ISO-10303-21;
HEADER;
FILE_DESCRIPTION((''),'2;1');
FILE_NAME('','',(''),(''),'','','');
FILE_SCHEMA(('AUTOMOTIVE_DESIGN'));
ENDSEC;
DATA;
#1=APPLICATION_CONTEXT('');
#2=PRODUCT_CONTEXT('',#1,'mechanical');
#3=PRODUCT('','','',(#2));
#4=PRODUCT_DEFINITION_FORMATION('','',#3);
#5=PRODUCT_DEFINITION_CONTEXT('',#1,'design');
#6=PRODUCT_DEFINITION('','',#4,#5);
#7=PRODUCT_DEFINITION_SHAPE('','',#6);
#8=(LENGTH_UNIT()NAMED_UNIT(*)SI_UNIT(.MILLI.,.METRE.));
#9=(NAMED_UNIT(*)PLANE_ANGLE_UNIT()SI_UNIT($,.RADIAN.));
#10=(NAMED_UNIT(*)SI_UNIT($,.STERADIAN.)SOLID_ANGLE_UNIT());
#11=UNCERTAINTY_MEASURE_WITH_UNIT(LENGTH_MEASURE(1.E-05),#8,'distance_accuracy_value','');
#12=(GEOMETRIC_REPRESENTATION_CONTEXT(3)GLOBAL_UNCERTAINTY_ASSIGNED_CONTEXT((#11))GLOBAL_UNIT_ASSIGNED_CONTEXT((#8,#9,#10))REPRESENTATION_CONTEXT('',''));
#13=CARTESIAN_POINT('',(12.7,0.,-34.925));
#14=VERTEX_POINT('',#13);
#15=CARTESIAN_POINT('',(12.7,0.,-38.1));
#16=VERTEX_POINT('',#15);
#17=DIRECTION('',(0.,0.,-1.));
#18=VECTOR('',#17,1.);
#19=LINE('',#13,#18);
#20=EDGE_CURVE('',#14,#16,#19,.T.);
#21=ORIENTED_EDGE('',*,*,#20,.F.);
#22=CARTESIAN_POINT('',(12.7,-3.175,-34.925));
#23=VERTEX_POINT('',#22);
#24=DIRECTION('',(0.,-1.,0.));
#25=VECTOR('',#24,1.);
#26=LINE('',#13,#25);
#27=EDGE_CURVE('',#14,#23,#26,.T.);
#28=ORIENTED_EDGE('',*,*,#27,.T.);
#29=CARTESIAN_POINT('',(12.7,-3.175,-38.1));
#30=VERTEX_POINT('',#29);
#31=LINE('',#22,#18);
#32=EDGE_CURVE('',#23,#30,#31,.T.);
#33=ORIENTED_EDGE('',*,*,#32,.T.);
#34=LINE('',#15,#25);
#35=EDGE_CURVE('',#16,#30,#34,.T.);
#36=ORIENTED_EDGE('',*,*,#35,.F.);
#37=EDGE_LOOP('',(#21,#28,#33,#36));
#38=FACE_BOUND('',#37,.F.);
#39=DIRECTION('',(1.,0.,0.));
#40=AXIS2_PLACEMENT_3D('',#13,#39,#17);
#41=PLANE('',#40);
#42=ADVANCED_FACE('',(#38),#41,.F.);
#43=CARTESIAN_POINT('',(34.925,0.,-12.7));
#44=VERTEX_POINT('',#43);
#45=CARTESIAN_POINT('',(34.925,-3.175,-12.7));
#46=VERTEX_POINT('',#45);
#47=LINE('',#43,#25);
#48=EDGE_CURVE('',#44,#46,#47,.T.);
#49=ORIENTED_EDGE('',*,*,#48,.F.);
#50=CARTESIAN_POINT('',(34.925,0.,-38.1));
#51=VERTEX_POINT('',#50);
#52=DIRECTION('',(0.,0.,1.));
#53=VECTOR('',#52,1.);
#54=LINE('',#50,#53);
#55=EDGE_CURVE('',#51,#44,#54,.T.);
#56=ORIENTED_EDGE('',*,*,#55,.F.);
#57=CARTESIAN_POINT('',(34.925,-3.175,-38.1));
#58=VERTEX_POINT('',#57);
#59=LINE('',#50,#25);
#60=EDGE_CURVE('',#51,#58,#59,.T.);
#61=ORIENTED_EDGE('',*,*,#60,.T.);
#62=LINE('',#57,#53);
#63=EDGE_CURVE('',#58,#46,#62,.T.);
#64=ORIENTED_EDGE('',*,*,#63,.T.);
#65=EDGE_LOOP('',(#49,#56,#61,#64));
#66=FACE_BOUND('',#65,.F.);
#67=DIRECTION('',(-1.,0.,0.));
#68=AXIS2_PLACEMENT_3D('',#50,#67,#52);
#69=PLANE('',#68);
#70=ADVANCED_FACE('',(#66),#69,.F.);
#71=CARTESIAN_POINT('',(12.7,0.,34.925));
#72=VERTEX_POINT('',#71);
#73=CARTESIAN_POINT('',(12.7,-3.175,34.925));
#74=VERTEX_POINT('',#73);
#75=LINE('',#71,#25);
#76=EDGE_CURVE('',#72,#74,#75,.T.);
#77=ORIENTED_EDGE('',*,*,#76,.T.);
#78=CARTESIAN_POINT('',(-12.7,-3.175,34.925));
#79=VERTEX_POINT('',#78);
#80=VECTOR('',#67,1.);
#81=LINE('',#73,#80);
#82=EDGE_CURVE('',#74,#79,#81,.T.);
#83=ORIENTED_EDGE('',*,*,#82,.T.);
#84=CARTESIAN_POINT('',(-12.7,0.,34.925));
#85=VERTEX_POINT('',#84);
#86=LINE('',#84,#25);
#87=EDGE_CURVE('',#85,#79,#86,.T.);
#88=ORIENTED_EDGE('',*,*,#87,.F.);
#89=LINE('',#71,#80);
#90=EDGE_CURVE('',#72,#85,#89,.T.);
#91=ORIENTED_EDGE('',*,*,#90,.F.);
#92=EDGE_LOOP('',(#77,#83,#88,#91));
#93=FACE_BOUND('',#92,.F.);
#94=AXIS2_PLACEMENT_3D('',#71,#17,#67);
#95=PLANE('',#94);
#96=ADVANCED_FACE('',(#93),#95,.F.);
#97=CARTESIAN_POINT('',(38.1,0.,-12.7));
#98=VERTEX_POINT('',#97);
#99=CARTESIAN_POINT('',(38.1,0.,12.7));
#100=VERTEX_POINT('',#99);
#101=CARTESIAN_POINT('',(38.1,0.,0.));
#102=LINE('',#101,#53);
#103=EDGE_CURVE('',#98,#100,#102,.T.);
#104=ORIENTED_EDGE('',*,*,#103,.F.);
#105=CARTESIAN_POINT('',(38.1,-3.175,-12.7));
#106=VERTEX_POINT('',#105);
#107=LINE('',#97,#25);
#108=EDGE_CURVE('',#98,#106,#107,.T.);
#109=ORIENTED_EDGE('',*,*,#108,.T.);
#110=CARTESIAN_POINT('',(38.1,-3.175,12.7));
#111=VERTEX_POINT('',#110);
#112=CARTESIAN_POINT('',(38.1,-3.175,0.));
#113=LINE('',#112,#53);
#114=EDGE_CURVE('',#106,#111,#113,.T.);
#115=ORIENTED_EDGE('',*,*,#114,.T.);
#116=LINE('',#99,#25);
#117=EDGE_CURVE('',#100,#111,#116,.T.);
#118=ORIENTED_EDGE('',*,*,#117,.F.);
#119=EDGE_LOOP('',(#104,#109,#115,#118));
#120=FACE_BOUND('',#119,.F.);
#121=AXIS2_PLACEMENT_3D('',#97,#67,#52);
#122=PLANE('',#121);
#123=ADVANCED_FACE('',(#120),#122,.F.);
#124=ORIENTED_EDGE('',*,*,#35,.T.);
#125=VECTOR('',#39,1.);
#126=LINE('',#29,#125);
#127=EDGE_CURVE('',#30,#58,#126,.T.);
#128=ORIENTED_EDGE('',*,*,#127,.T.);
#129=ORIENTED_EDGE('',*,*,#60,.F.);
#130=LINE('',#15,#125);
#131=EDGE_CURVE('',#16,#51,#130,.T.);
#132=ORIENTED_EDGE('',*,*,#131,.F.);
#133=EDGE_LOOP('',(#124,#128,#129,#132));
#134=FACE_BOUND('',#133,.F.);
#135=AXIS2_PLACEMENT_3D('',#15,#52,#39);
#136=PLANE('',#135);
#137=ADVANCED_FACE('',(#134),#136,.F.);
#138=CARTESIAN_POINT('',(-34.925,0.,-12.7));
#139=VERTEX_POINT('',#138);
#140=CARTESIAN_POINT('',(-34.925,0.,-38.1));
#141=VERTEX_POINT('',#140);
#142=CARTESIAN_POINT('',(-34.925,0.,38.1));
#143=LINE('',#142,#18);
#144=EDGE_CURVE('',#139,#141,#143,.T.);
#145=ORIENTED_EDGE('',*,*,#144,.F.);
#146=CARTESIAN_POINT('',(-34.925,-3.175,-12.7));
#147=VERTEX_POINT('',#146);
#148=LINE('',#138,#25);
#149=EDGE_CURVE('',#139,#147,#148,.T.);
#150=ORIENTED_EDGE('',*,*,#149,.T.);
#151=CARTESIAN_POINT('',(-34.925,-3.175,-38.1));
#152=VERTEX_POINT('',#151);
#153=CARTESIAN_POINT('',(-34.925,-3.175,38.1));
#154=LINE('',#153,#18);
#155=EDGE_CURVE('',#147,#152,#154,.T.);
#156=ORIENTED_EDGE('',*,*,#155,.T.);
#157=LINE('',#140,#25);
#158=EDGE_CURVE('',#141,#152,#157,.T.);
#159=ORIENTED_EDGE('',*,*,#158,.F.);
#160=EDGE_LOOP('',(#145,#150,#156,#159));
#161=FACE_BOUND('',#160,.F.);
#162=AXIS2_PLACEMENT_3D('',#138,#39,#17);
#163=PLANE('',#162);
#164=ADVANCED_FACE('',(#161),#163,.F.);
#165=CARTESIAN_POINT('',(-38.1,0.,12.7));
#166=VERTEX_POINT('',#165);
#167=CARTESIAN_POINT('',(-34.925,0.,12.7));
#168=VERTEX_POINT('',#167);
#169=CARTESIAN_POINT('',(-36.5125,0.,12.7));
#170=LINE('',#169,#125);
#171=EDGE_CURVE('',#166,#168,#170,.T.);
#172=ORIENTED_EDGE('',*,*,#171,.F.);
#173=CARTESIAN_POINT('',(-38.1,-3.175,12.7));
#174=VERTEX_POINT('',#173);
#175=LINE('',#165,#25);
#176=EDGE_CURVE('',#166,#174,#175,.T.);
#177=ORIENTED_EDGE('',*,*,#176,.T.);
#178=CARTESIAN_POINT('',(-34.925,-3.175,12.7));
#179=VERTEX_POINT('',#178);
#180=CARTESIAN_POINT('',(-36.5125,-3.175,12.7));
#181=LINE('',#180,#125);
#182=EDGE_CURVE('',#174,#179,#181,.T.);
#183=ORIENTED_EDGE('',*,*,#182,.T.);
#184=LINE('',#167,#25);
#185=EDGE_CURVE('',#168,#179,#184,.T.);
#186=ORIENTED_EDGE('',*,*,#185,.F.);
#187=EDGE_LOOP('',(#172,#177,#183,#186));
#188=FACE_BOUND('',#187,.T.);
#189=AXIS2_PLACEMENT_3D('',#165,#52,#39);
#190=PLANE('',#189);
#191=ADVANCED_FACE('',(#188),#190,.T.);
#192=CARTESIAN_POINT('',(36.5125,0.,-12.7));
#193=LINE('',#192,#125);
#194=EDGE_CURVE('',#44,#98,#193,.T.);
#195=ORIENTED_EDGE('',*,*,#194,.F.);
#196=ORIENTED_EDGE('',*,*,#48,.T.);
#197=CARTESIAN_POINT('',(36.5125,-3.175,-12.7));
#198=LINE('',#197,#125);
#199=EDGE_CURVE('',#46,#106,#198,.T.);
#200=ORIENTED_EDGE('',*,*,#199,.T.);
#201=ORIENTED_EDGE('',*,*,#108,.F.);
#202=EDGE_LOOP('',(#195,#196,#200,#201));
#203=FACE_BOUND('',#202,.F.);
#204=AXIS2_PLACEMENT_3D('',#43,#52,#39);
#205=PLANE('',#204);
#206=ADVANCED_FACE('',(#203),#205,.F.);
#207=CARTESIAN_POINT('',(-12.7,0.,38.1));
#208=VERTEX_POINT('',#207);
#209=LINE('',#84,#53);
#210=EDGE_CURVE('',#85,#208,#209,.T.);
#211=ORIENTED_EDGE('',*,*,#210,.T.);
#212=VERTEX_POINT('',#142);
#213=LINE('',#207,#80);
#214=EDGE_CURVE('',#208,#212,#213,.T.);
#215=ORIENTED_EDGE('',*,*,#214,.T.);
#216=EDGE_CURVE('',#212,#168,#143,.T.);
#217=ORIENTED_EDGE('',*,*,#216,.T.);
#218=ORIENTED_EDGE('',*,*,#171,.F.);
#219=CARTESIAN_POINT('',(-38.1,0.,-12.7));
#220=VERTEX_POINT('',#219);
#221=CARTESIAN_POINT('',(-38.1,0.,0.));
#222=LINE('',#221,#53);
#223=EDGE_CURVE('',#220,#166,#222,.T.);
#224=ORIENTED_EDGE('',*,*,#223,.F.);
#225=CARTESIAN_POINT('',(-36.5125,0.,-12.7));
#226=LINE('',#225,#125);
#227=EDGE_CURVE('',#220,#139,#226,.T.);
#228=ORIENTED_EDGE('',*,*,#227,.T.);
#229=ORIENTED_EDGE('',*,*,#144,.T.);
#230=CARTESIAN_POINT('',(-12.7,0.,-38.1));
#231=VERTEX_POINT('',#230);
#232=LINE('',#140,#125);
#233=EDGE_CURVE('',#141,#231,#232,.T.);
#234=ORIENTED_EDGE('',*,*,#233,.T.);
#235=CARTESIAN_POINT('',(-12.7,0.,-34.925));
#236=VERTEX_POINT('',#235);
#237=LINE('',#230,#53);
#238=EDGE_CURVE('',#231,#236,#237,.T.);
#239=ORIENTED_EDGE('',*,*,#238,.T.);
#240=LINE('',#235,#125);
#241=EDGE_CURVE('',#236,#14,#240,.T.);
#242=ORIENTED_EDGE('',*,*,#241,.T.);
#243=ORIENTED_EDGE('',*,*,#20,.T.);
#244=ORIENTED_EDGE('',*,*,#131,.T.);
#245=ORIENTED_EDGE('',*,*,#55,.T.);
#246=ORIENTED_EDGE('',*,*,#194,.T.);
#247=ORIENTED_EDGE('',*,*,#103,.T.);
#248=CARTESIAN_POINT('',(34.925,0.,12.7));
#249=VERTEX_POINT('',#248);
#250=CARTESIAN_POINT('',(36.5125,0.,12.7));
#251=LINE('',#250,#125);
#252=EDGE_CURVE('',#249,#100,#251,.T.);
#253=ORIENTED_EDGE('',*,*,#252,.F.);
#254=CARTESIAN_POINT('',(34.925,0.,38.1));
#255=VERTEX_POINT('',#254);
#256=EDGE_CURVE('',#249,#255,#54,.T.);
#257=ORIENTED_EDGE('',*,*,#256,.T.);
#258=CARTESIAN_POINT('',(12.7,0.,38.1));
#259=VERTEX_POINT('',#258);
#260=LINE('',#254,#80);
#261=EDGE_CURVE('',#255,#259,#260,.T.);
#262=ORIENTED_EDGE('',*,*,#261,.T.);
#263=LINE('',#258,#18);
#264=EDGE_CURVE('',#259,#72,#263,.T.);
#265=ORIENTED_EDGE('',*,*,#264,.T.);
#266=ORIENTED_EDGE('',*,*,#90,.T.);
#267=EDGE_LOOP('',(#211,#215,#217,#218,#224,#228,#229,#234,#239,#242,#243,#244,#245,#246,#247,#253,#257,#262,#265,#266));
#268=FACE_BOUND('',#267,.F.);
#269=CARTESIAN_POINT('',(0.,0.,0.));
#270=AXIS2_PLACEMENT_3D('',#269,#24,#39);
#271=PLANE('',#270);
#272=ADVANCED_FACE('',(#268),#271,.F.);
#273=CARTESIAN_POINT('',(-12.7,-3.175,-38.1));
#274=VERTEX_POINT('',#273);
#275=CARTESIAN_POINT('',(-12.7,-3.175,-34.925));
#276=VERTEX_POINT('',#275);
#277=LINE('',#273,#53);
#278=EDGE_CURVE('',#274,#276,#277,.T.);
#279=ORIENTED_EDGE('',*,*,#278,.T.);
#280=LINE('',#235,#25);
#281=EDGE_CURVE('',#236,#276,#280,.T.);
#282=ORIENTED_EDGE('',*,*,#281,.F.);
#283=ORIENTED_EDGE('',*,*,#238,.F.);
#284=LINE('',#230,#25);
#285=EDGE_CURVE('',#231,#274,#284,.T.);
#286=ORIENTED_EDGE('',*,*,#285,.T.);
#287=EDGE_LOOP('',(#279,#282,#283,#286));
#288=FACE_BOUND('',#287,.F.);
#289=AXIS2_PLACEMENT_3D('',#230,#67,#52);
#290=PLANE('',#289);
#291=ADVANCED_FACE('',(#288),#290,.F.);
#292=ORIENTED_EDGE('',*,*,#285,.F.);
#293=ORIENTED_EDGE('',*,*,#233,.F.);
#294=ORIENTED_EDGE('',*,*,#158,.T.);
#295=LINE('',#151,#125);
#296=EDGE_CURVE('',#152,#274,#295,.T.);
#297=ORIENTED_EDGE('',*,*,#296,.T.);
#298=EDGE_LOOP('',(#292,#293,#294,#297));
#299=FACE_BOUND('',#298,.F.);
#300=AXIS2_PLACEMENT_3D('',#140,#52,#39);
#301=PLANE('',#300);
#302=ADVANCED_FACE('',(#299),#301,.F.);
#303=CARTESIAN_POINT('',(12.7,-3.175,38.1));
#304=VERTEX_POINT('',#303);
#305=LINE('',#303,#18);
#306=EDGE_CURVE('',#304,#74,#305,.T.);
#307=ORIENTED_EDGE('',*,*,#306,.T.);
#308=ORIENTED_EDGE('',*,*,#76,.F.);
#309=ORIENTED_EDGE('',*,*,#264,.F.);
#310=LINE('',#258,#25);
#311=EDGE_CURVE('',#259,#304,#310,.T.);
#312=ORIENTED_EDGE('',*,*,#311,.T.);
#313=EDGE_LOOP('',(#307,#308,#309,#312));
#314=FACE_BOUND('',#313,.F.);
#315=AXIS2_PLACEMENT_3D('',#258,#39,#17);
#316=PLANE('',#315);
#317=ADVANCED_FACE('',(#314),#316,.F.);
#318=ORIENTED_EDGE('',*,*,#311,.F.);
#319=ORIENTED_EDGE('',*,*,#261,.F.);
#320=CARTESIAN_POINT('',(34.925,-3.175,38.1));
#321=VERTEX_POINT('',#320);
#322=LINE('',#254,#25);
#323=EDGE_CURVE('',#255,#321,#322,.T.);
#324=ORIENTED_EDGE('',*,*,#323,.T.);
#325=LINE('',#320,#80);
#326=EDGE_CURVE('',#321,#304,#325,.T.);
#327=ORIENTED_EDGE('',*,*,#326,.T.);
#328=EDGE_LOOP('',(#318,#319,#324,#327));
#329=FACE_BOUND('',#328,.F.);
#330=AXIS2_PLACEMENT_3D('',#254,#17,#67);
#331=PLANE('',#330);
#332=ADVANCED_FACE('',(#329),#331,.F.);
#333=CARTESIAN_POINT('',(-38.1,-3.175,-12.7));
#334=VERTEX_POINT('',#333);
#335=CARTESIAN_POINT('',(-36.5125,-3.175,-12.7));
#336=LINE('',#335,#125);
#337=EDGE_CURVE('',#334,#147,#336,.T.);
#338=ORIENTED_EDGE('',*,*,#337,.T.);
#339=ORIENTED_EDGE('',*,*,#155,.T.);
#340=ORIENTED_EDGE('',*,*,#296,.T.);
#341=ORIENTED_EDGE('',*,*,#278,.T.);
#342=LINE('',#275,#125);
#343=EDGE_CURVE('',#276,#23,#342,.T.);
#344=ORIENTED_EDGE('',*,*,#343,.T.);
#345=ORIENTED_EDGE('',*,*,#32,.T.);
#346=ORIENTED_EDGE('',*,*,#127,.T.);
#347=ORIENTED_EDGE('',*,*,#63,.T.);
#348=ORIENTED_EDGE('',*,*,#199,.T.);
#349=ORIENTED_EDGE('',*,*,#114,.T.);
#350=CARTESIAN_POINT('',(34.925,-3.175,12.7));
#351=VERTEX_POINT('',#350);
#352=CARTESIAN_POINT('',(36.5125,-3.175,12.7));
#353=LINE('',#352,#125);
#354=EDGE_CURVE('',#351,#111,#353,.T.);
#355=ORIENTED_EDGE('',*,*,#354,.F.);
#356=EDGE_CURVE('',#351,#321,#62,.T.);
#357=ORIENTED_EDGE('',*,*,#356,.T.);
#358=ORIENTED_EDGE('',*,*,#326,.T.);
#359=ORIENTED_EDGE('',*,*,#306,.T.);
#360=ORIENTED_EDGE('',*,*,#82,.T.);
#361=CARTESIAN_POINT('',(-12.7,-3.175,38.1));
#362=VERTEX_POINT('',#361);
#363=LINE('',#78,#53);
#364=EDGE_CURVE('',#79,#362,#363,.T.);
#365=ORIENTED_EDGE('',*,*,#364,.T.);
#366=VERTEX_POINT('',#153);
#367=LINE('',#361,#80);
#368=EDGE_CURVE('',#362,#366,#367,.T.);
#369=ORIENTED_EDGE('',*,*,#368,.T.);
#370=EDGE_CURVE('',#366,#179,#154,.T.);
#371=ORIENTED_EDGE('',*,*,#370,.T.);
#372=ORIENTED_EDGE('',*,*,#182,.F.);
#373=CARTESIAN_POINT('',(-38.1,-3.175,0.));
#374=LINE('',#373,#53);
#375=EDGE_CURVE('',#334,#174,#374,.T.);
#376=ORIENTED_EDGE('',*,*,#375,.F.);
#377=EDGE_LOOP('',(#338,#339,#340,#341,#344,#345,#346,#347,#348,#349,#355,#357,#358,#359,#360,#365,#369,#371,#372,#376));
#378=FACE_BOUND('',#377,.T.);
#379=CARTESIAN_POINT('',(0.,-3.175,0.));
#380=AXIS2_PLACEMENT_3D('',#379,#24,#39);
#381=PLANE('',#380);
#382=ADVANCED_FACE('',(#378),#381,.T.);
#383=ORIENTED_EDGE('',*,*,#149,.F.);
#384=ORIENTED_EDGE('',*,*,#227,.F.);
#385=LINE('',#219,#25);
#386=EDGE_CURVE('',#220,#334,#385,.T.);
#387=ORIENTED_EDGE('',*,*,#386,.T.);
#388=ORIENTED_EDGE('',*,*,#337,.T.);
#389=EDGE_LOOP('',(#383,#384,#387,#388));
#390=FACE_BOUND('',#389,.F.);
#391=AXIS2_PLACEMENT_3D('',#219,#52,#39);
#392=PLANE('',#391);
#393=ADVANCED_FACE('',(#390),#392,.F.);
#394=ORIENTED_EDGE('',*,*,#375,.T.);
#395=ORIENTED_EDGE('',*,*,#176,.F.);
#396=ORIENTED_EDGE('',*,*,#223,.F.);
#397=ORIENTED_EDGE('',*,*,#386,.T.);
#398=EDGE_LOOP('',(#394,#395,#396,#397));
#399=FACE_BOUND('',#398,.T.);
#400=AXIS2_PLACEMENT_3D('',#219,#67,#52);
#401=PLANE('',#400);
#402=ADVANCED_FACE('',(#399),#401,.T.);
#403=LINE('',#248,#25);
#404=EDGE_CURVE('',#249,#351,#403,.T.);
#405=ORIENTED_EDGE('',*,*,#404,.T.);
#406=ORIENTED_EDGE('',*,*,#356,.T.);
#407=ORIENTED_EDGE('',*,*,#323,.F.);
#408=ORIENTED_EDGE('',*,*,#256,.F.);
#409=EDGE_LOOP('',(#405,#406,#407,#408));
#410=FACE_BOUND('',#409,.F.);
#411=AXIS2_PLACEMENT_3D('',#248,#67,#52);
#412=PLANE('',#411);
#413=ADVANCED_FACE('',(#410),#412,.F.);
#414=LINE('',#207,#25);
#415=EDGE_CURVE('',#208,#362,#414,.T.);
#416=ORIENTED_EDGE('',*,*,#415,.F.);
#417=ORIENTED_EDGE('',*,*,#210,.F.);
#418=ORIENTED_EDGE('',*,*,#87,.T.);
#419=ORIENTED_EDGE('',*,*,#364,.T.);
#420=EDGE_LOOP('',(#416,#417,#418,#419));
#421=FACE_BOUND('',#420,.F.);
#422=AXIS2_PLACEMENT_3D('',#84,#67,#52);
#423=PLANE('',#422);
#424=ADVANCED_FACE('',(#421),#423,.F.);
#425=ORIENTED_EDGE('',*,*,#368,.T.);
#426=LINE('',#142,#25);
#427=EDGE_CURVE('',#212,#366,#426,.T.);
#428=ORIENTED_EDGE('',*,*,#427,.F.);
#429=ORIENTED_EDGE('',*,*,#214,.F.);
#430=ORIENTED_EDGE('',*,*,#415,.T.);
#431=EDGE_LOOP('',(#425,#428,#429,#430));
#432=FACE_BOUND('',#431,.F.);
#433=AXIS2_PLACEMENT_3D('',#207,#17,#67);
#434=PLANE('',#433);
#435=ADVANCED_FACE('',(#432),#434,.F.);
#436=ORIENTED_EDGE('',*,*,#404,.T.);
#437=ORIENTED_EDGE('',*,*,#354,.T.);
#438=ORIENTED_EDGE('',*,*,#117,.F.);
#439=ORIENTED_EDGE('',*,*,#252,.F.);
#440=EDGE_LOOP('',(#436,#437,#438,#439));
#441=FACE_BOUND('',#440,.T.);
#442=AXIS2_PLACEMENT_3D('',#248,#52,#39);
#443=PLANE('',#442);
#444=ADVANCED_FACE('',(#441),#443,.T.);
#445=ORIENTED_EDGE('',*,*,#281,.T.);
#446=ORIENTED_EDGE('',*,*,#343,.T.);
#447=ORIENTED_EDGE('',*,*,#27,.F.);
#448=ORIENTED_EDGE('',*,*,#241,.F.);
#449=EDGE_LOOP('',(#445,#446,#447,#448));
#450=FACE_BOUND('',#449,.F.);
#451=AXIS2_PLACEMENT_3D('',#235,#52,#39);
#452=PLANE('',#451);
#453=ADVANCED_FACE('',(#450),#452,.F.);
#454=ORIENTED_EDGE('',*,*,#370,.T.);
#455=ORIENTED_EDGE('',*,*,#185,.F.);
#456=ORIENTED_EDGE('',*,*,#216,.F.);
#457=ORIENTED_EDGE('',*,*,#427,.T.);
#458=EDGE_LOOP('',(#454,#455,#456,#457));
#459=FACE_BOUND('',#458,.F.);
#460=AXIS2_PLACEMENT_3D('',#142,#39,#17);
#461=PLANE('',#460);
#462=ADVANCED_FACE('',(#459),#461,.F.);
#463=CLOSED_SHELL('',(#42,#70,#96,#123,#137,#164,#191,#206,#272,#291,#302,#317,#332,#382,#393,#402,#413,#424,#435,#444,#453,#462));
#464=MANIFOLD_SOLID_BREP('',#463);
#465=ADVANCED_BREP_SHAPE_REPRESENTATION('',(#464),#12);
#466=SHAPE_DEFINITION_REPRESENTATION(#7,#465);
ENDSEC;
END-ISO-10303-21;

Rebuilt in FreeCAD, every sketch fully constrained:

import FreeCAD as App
import Part
import Sketcher

V = App.Vector
Q = App.Units.Quantity


def add_polygon(sketch, points):
    """Adds a closed chain of lines whose ends are joined by coincident constraints."""
    first, n = sketch.GeometryCount, len(points)
    for a, b in zip(points, points[1:] + points[:1]):
        sketch.addGeometry(Part.LineSegment(App.Vector(*a, 0), App.Vector(*b, 0)), False)
    for i in range(n):
        sketch.addConstraint(Sketcher.Constraint("Coincident", first + i, 2, first + (i + 1) % n, 1))

doc = App.newDocument("Part")
body = doc.addObject("PartDesign::Body", "Body")

sketch1 = doc.addObject("Sketcher::SketchObject", "Sketch")
body.addObject(sketch1)
sketch1.AttachmentSupport = (doc.XZ_Plane, [""])
sketch1.MapMode = "FlatFace"
add_polygon(sketch1, [(12.7, -38.1), (34.925, -38.1), (34.925, -12.7), (38.1, -12.7), (38.1, 12.7), (34.925, 12.7), (34.925, 38.1), (12.7, 38.1), (12.7, 34.925), (-12.7, 34.925), (-12.7, 38.1), (-34.925, 38.1), (-34.925, 12.7), (-38.1, 12.7), (-38.1, -12.7), (-34.925, -12.7), (-34.925, -38.1), (-12.7, -38.1), (-12.7, -34.925), (12.7, -34.925)])
sketch1.addConstraint(Sketcher.Constraint("Horizontal", 0))
sketch1.addConstraint(Sketcher.Constraint("Vertical", 1))
sketch1.addConstraint(Sketcher.Constraint("Horizontal", 2))
sketch1.addConstraint(Sketcher.Constraint("Vertical", 3))
sketch1.addConstraint(Sketcher.Constraint("Horizontal", 4))
sketch1.addConstraint(Sketcher.Constraint("Vertical", 5))
sketch1.addConstraint(Sketcher.Constraint("Horizontal", 6))
sketch1.addConstraint(Sketcher.Constraint("Vertical", 7))
sketch1.addConstraint(Sketcher.Constraint("Horizontal", 8))
sketch1.addConstraint(Sketcher.Constraint("Vertical", 9))
sketch1.addConstraint(Sketcher.Constraint("Horizontal", 10))
sketch1.addConstraint(Sketcher.Constraint("Vertical", 11))
sketch1.addConstraint(Sketcher.Constraint("Horizontal", 12))
sketch1.addConstraint(Sketcher.Constraint("Vertical", 13))
sketch1.addConstraint(Sketcher.Constraint("Horizontal", 14))
sketch1.addConstraint(Sketcher.Constraint("Vertical", 15))
sketch1.addConstraint(Sketcher.Constraint("Horizontal", 16))
sketch1.addConstraint(Sketcher.Constraint("Vertical", 17))
sketch1.addConstraint(Sketcher.Constraint("Horizontal", 18))
sketch1.addConstraint(Sketcher.Constraint("Vertical", 19))
sketch1.addConstraint(Sketcher.Constraint("Symmetric", 0, 2, 10, 2, -1, 1))
sketch1.addConstraint(Sketcher.Constraint("Symmetric", 2, 2, 12, 2, -1, 1))
sketch1.addConstraint(Sketcher.Constraint("Symmetric", 4, 2, 14, 2, -1, 1))
sketch1.addConstraint(Sketcher.Constraint("Symmetric", 6, 2, 16, 2, -1, 1))
sketch1.addConstraint(Sketcher.Constraint("Symmetric", 8, 2, 18, 2, -1, 1))
sketch1.addConstraint(Sketcher.Constraint("Symmetric", 6, 2, 9, 2, -2))
sketch1.addConstraint(Sketcher.Constraint("Symmetric", 4, 2, 11, 2, -2))
sketch1.addConstraint(Sketcher.Constraint("Equal", 18, 1))
sketch1.addConstraint(Sketcher.Constraint("Equal", 1, 3))
sketch1.addConstraint(Sketcher.Constraint("Equal", 14, 7))
sketch1.addConstraint(Sketcher.Constraint("DistanceX", 8, 2, 8, 1, Q("1 in")))
sketch1.addConstraint(Sketcher.Constraint("DistanceX", 6, 2, 3, 2, Q("1 in")))
sketch1.addConstraint(Sketcher.Constraint("DistanceX", 0, 1, 0, 2, Q("0.875 in")))
pad1 = doc.addObject("PartDesign::Pad", "Pad")
body.addObject(pad1)
pad1.Profile = sketch1
pad1.Length = Q("0.125 in")

doc.recompute()
